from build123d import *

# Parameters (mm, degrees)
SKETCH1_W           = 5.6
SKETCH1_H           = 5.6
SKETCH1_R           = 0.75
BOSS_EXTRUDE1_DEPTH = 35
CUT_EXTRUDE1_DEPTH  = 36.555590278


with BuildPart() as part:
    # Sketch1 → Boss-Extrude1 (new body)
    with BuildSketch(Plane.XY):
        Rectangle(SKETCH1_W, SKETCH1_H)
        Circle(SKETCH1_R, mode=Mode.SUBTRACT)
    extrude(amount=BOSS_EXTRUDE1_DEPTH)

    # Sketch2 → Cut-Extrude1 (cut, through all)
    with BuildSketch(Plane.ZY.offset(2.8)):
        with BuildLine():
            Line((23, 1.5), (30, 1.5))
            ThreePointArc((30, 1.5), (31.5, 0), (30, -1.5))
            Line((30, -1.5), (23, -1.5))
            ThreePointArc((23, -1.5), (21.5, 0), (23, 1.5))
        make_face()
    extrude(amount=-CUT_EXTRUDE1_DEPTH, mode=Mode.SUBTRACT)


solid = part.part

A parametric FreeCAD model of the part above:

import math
import FreeCAD as App
import Part
import Sketcher
from FreeCAD import Vector

doc = App.newDocument("Part")
params = doc.addObject("Spreadsheet::Sheet", "Params")
for row, (alias, value) in enumerate([
    ("sketch1_diameter", "1.5 mm"),
    ("sketch1_width", "5.6 mm"),
    ("pad1_length", "35 mm"),
    ("sketch2_radius", "1.5 mm"),
    ("sketch2_height", "7 mm"),
], start=1):
    params.set(f"A{row}", alias)
    params.set(f"B{row}", "=" + value)
    params.setAlias(f"B{row}", alias)

body = doc.addObject("PartDesign::Body", "Body")

# Sketch on XY plane
sketch1 = doc.addObject("Sketcher::SketchObject", "Sketch")
body.addObject(sketch1)
sketch1.AttachmentSupport = (doc.XY_Plane, [""])
sketch1.MapMode = "FlatFace"
sketch1.addGeometry(Part.LineSegment(Vector(-2.8, 2.8, 0), Vector(-2.8, -2.8, 0)), False)
sketch1.addGeometry(Part.LineSegment(Vector(-2.8, -2.8, 0), Vector(2.8, -2.8, 0)), False)
sketch1.addGeometry(Part.LineSegment(Vector(2.8, -2.8, 0), Vector(2.8, 2.8, 0)), False)
sketch1.addGeometry(Part.LineSegment(Vector(2.8, 2.8, 0), Vector(-2.8, 2.8, 0)), False)
sketch1.addGeometry(Part.Circle(Vector(0, 0, 0), Vector(0, 0, 1), 0.8), False)
sketch1.addConstraint(Sketcher.Constraint("Coincident", 0, 2, 1, 1))
sketch1.addConstraint(Sketcher.Constraint("Coincident", 1, 2, 2, 1))
sketch1.addConstraint(Sketcher.Constraint("Coincident", 2, 2, 3, 1))
sketch1.addConstraint(Sketcher.Constraint("Coincident", 3, 2, 0, 1))
sketch1.addConstraint(Sketcher.Constraint("Vertical", 0))
sketch1.addConstraint(Sketcher.Constraint("Horizontal", 1))
sketch1.addConstraint(Sketcher.Constraint("Vertical", 2))
sketch1.addConstraint(Sketcher.Constraint("Horizontal", 3))
sketch1.addConstraint(Sketcher.Constraint("Coincident", 4, 3, -1, 1))
sketch1.addConstraint(Sketcher.Constraint("Symmetric", 0, 2, 2, 2, -1, 1))
sketch1.addConstraint(Sketcher.Constraint("Equal", 3, 0))
sketch1.addConstraint(Sketcher.Constraint("Diameter", 4, 1.5))
sketch1.addConstraint(Sketcher.Constraint("DistanceX", 1, 1, 1, 2, 5.6))
sketch1.setExpression("Constraints[11]", "Params.sketch1_diameter")
sketch1.setExpression("Constraints[12]", "Params.sketch1_width")
pad1 = doc.addObject("PartDesign::Pad", "Pad")
body.addObject(pad1)
pad1.Profile = sketch1
pad1.setExpression("Length", "Params.pad1_length")

# Sketch on YZ plane
sketch2 = doc.addObject("Sketcher::SketchObject", "Sketch001")
body.addObject(sketch2)
sketch2.AttachmentSupport = (doc.YZ_Plane, [""])
sketch2.MapMode = "FlatFace"
sketch2.AttachmentOffset = App.Placement(Vector(0, 0, -2.8), App.Rotation())
sketch2.addGeometry(Part.LineSegment(Vector(1.5, 30, 0), Vector(1.5, 23, 0)), False)
sketch2.addGeometry(Part.ArcOfCircle(Part.Circle(Vector(0, 23, 0), Vector(0, 0, 1), 1.5), math.radians(180), math.radians(360)), False)
sketch2.addGeometry(Part.LineSegment(Vector(-1.5, 23, 0), Vector(-1.5, 30, 0)), False)
sketch2.addGeometry(Part.ArcOfCircle(Part.Circle(Vector(0, 30, 0), Vector(0, 0, 1), 1.5), math.radians(0), math.radians(180)), False)
sketch2.addConstraint(Sketcher.Constraint("Tangent", 0, 2, 1, 2))
sketch2.addConstraint(Sketcher.Constraint("Tangent", 1, 1, 2, 1))
sketch2.addConstraint(Sketcher.Constraint("Tangent", 2, 2, 3, 2))
sketch2.addConstraint(Sketcher.Constraint("Tangent", 3, 1, 0, 1))
sketch2.addConstraint(Sketcher.Constraint("Vertical", 0))
sketch2.addConstraint(Sketcher.Constraint("Vertical", 2))
sketch2.addConstraint(Sketcher.Constraint("PointOnObject", 1, 3, -2))
sketch2.addConstraint(Sketcher.Constraint("Radius", 1, 1.5))
sketch2.addConstraint(Sketcher.Constraint("DistanceY", 0, 2, 0, 1, 7.0))
sketch2.addConstraint(Sketcher.Constraint("DistanceY", -1, 1, 1, 3, 23.0))
sketch2.setExpression("Constraints[7]", "Params.sketch2_radius")
sketch2.setExpression("Constraints[8]", "Params.sketch2_height")
pocket1 = doc.addObject("PartDesign::Pocket", "Pocket")
body.addObject(pocket1)
pocket1.Profile = sketch2
pocket1.Type = "ThroughAll"
pocket1.Reversed = True

doc.recompute()
